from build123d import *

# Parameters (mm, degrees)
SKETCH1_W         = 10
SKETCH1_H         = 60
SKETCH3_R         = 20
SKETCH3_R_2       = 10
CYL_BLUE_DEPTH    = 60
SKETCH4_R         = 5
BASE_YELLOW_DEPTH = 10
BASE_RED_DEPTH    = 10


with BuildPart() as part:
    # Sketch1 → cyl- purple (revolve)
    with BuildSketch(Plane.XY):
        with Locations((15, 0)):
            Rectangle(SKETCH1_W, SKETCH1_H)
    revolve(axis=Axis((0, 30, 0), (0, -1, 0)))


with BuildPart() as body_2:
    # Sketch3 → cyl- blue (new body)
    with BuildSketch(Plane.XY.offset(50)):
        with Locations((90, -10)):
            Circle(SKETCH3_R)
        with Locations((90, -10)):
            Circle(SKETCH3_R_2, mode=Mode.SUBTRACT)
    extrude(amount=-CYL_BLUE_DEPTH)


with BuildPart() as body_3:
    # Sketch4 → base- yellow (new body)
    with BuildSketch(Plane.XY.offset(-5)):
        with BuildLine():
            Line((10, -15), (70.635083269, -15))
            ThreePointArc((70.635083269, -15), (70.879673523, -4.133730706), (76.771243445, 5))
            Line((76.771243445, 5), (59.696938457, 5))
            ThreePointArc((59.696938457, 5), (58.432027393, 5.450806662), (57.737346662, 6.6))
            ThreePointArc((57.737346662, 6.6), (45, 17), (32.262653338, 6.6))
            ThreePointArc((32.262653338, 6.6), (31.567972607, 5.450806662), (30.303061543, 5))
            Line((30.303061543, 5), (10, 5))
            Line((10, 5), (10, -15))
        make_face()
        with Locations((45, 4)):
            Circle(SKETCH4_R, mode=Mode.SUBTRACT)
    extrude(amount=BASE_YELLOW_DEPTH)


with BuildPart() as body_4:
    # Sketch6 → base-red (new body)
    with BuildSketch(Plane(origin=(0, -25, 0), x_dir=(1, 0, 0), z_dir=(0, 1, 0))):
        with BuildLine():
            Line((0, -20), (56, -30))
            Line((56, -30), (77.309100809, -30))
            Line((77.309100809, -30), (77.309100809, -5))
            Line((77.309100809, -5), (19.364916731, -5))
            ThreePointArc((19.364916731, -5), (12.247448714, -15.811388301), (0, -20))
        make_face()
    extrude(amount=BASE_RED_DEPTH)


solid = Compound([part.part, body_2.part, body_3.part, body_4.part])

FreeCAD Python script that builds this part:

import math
import FreeCAD as App
import Part
import Sketcher
from FreeCAD import Vector

doc = App.newDocument("Part")
body = doc.addObject("PartDesign::Body", "Body")

sketch1 = doc.addObject("Sketcher::SketchObject", "Sketch")
body.addObject(sketch1)
sketch1.AttachmentSupport = (doc.XY_Plane, [""])
sketch1.MapMode = "FlatFace"
sketch1.addGeometry(Part.LineSegment(Vector(10, 30, 0), Vector(10, -30, 0)), False)
sketch1.addGeometry(Part.LineSegment(Vector(10, -30, 0), Vector(20, -30, 0)), False)
sketch1.addGeometry(Part.LineSegment(Vector(20, -30, 0), Vector(20, 30, 0)), False)
sketch1.addGeometry(Part.LineSegment(Vector(20, 30, 0), Vector(10, 30, 0)), False)
sketch1.addConstraint(Sketcher.Constraint("Coincident", 0, 2, 1, 1))
sketch1.addConstraint(Sketcher.Constraint("Coincident", 1, 2, 2, 1))
sketch1.addConstraint(Sketcher.Constraint("Coincident", 2, 2, 3, 1))
sketch1.addConstraint(Sketcher.Constraint("Coincident", 3, 2, 0, 1))
sketch1.addConstraint(Sketcher.Constraint("Vertical", 0))
sketch1.addConstraint(Sketcher.Constraint("Horizontal", 1))
sketch1.addConstraint(Sketcher.Constraint("Vertical", 2))
sketch1.addConstraint(Sketcher.Constraint("Horizontal", 3))
sketch1.addConstraint(Sketcher.Constraint("DistanceX", 1, 1, 1, 2, 10.0))
sketch1.addConstraint(Sketcher.Constraint("DistanceY", 0, 2, 0, 1, 60.0))
sketch1.addConstraint(Sketcher.Constraint("DistanceX", -1, 1, 0, 2, 10.0))
sketch1.addConstraint(Sketcher.Constraint("DistanceY", 0, 2, -1, 1, 30.0))
revolution = doc.addObject("PartDesign::Revolution", "Revolution")
body.addObject(revolution)
revolution.Profile = sketch1
revolution.ReferenceAxis = (sketch1, ["V_Axis"])
revolution.Angle = 360
body2 = doc.addObject("PartDesign::Body", "Body001")

sketch2 = doc.addObject("Sketcher::SketchObject", "Sketch001")
body2.addObject(sketch2)
sketch2.AttachmentSupport = (doc.getObject("XY_Plane001"), [""])
sketch2.MapMode = "FlatFace"
sketch2.AttachmentOffset = App.Placement(Vector(0, 0, 50), App.Rotation())
sketch2.addGeometry(Part.Circle(Vector(90, -10, 0), Vector(0, 0, 1), 20), False)
sketch2.addGeometry(Part.Circle(Vector(90, -10, 0), Vector(0, 0, 1), 10), False)
sketch2.addConstraint(Sketcher.Constraint("Coincident", 1, 3, 0, 3))
sketch2.addConstraint(Sketcher.Constraint("Diameter", 0, 40.0))
sketch2.addConstraint(Sketcher.Constraint("Diameter", 1, 20.0))
sketch2.addConstraint(Sketcher.Constraint("DistanceX", -1, 1, 0, 3, 90.0))
sketch2.addConstraint(Sketcher.Constraint("DistanceY", 0, 3, -1, 1, 10.0))
pad1 = doc.addObject("PartDesign::Pad", "Pad")
body2.addObject(pad1)
pad1.Profile = sketch2
pad1.Length = 60
pad1.Reversed = True
body3 = doc.addObject("PartDesign::Body", "Body002")

sketch3 = doc.addObject("Sketcher::SketchObject", "Sketch002")
body3.addObject(sketch3)
sketch3.AttachmentSupport = (doc.getObject("XY_Plane002"), [""])
sketch3.MapMode = "FlatFace"
sketch3.AttachmentOffset = App.Placement(Vector(0, 0, -5), App.Rotation())
sketch3.addGeometry(Part.LineSegment(Vector(10, -15, 0), Vector(70.6, -15, 0)), False)
sketch3.addGeometry(Part.ArcOfCircle(Part.Circle(Vector(90, -10, 0), Vector(0, 0, 1), 20), math.radians(131), math.radians(194)), False)
sketch3.addGeometry(Part.LineSegment(Vector(76.8, 5, 0), Vector(59.7, 5, 0)), False)
sketch3.addGeometry(Part.ArcOfCircle(Part.Circle(Vector(59.7, 7, 0), Vector(0, 0, 1), 2), math.radians(-168), math.radians(-90)), False)
sketch3.addGeometry(Part.ArcOfCircle(Part.Circle(Vector(45, 4, 0), Vector(0, 0, 1), 13), math.radians(12), math.radians(168)), False)
sketch3.addGeometry(Part.ArcOfCircle(Part.Circle(Vector(30.3, 7, 0), Vector(0, 0, 1), 2), math.radians(-90), math.radians(-12)), False)
sketch3.addGeometry(Part.LineSegment(Vector(30.3, 5, 0), Vector(10, 5, 0)), False)
sketch3.addGeometry(Part.LineSegment(Vector(10, 5, 0), Vector(10, -15, 0)), False)
sketch3.addGeometry(Part.Circle(Vector(45, 4, 0), Vector(0, 0, 1), 5), False)
sketch3.addConstraint(Sketcher.Constraint("Coincident", 0, 2, 1, 2))
sketch3.addConstraint(Sketcher.Constraint("Coincident", 1, 1, 2, 1))
sketch3.addConstraint(Sketcher.Constraint("Tangent", 2, 2, 3, 2))
sketch3.addConstraint(Sketcher.Constraint("Tangent", 3, 1, 4, 1))
sketch3.addConstraint(Sketcher.Constraint("Tangent", 4, 2, 5, 2))
sketch3.addConstraint(Sketcher.Constraint("Tangent", 5, 1, 6, 1))
sketch3.addConstraint(Sketcher.Constraint("Coincident", 6, 2, 7, 1))
sketch3.addConstraint(Sketcher.Constraint("Coincident", 7, 2, 0, 1))
sketch3.addConstraint(Sketcher.Constraint("Horizontal", 0))
sketch3.addConstraint(Sketcher.Constraint("Horizontal", 2))
sketch3.addConstraint(Sketcher.Constraint("Horizontal", 6))
sketch3.addConstraint(Sketcher.Constraint("Vertical", 7))
sketch3.addConstraint(Sketcher.Constraint("Coincident", 8, 3, 4, 3))
sketch3.addConstraint(Sketcher.Constraint("Equal", 3, 5))
sketch3.addConstraint(Sketcher.Constraint("Horizontal", 3, 3, 5, 3))
sketch3.addConstraint(Sketcher.Constraint("Diameter", 8, 10.0))
sketch3.addConstraint(Sketcher.Constraint("Radius", 1, 20.0))
sketch3.addConstraint(Sketcher.Constraint("Radius", 3, 2.0))
sketch3.addConstraint(Sketcher.Constraint("Radius", 4, 13.0))
sketch3.addConstraint(Sketcher.Constraint("DistanceY", 7, 2, 7, 1, 20.0))
sketch3.addConstraint(Sketcher.Constraint("DistanceX", -1, 1, 1, 3, 90.0))
sketch3.addConstraint(Sketcher.Constraint("DistanceY", 1, 3, -1, 1, 10.0))
sketch3.addConstraint(Sketcher.Constraint("DistanceY", -1, 1, 3, 3, 7.0))
sketch3.addConstraint(Sketcher.Constraint("DistanceX", -1, 1, 4, 3, 45.0))
sketch3.addConstraint(Sketcher.Constraint("DistanceY", -1, 1, 4, 3, 4.0))
sketch3.addConstraint(Sketcher.Constraint("DistanceX", -1, 1, 6, 2, 10.0))
pad2 = doc.addObject("PartDesign::Pad", "Pad001")
body3.addObject(pad2)
pad2.Profile = sketch3
pad2.Length = 10
body4 = doc.addObject("PartDesign::Body", "Body003")

sketch4 = doc.addObject("Sketcher::SketchObject", "Sketch003")
body4.addObject(sketch4)
sketch4.AttachmentSupport = (doc.getObject("XZ_Plane003"), [""])
sketch4.MapMode = "FlatFace"
sketch4.AttachmentOffset = App.Placement(Vector(0, 0, 25), App.Rotation())
sketch4.addGeometry(Part.LineSegment(Vector(0, 20, 0), Vector(56, 30, 0)), False)
sketch4.addGeometry(Part.LineSegment(Vector(56, 30, 0), Vector(77, 30, 0)), False)
sketch4.addGeometry(Part.LineSegment(Vector(77, 30, 0), Vector(77, 5, 0)), False)
sketch4.addGeometry(Part.LineSegment(Vector(77, 5, 0), Vector(19, 5, 0)), False)
sketch4.addGeometry(Part.ArcOfCircle(Part.Circle(Vector(0, 0, 0), Vector(0, 0, 1), 20), math.radians(14), math.radians(90)), False)
sketch4.addConstraint(Sketcher.Constraint("Coincident", 0, 2, 1, 1))
sketch4.addConstraint(Sketcher.Constraint("Coincident", 1, 2, 2, 1))
sketch4.addConstraint(Sketcher.Constraint("Coincident", 2, 2, 3, 1))
sketch4.addConstraint(Sketcher.Constraint("Coincident", 3, 2, 4, 1))
sketch4.addConstraint(Sketcher.Constraint("Coincident", 4, 2, 0, 1))
sketch4.addConstraint(Sketcher.Constraint("Horizontal", 1))
sketch4.addConstraint(Sketcher.Constraint("Vertical", 2))
sketch4.addConstraint(Sketcher.Constraint("Horizontal", 3))
sketch4.addConstraint(Sketcher.Constraint("Coincident", 4, 3, -1, 1))
sketch4.addConstraint(Sketcher.Constraint("PointOnObject", 4, 2, -2))
sketch4.addConstraint(Sketcher.Constraint("Radius", 4, 20.0))
sketch4.addConstraint(Sketcher.Constraint("DistanceY", 2, 2, 2, 1, 25.0))
sketch4.addConstraint(Sketcher.Constraint("DistanceX", -1, 1, 0, 2, 56.0))
sketch4.addConstraint(Sketcher.Constraint("DistanceY", -1, 1, 0, 2, 30.0))
sketch4.addConstraint(Sketcher.Constraint("DistanceX", 1, 1, 1, 2, 21.309101))
pad3 = doc.addObject("PartDesign::Pad", "Pad002")
body4.addObject(pad3)
pad3.Profile = sketch4
pad3.Length = 10
pad3.Reversed = True

doc.recompute()
